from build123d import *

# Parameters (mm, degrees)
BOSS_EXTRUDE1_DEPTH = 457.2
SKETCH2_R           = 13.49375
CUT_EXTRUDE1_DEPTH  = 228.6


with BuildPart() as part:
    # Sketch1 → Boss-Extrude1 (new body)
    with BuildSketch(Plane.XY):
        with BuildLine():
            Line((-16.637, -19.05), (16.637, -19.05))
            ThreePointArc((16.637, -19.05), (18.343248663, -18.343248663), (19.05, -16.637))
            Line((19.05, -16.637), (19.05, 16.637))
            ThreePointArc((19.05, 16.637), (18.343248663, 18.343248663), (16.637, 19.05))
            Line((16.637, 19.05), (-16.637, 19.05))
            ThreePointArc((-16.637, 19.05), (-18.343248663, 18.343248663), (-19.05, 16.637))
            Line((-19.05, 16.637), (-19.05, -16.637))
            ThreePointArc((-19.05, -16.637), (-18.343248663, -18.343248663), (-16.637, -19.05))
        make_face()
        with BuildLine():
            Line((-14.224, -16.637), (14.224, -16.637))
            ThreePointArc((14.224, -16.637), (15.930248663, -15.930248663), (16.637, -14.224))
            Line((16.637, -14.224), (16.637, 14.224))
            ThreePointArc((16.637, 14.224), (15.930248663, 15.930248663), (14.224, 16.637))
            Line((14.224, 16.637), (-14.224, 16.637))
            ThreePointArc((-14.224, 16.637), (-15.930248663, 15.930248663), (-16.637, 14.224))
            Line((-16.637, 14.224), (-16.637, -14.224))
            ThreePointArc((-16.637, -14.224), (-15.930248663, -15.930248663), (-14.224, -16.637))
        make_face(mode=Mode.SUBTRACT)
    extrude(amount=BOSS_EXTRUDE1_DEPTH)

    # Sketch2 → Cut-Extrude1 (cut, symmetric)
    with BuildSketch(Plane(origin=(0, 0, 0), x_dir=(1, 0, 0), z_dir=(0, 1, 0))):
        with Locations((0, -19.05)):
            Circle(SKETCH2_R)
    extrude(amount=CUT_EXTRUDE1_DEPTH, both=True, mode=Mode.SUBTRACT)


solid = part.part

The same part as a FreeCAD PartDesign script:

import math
import FreeCAD as App
import Part
import Sketcher
Q = App.Units.Quantity

doc = App.newDocument("Part")
body = doc.addObject("PartDesign::Body", "Body")

sketch1 = body.newObject("Sketcher::SketchObject", "Sketch")
sketch1.AttachmentSupport = (doc.getObject("XY_Plane"), [""])
sketch1.MapMode = "FlatFace"
sketch1.addGeometry(Part.LineSegment(App.Vector(-16.6, -19.1, 0), App.Vector(16.6, -19.1, 0)), False)
sketch1.addGeometry(Part.ArcOfCircle(Part.Circle(App.Vector(16.6, -16.6, 0), App.Vector(0, 0, 1), 2.4), math.radians(-90), math.radians(0)), False)
sketch1.addGeometry(Part.LineSegment(App.Vector(19.1, -16.6, 0), App.Vector(19.1, 16.6, 0)), False)
sketch1.addGeometry(Part.ArcOfCircle(Part.Circle(App.Vector(16.6, 16.6, 0), App.Vector(0, 0, 1), 2.4), math.radians(0), math.radians(90)), False)
sketch1.addGeometry(Part.LineSegment(App.Vector(16.6, 19.1, 0), App.Vector(-16.6, 19.1, 0)), False)
sketch1.addGeometry(Part.ArcOfCircle(Part.Circle(App.Vector(-16.6, 16.6, 0), App.Vector(0, 0, 1), 2.4), math.radians(90), math.radians(180)), False)
sketch1.addGeometry(Part.LineSegment(App.Vector(-19.1, 16.6, 0), App.Vector(-19.1, -16.6, 0)), False)
sketch1.addGeometry(Part.ArcOfCircle(Part.Circle(App.Vector(-16.6, -16.6, 0), App.Vector(0, 0, 1), 2.4), math.radians(180), math.radians(270)), False)
sketch1.addGeometry(Part.LineSegment(App.Vector(14.2, -16.6, 0), App.Vector(-14.2, -16.6, 0)), False)
sketch1.addGeometry(Part.ArcOfCircle(Part.Circle(App.Vector(-14.2, -14.2, 0), App.Vector(0, 0, 1), 2.4), math.radians(180), math.radians(270)), False)
sketch1.addGeometry(Part.LineSegment(App.Vector(-16.6, -14.2, 0), App.Vector(-16.6, 14.2, 0)), False)
sketch1.addGeometry(Part.ArcOfCircle(Part.Circle(App.Vector(-14.2, 14.2, 0), App.Vector(0, 0, 1), 2.4), math.radians(90), math.radians(180)), False)
sketch1.addGeometry(Part.LineSegment(App.Vector(-14.2, 16.6, 0), App.Vector(14.2, 16.6, 0)), False)
sketch1.addGeometry(Part.ArcOfCircle(Part.Circle(App.Vector(14.2, 14.2, 0), App.Vector(0, 0, 1), 2.4), math.radians(0), math.radians(90)), False)
sketch1.addGeometry(Part.LineSegment(App.Vector(16.6, 14.2, 0), App.Vector(16.6, -14.2, 0)), False)
sketch1.addGeometry(Part.ArcOfCircle(Part.Circle(App.Vector(14.2, -14.2, 0), App.Vector(0, 0, 1), 2.4), math.radians(-90), math.radians(0)), False)
sketch1.addConstraint(Sketcher.Constraint("Tangent", 0, 2, 1, 1))
sketch1.addConstraint(Sketcher.Constraint("Tangent", 1, 2, 2, 1))
sketch1.addConstraint(Sketcher.Constraint("Tangent", 2, 2, 3, 1))
sketch1.addConstraint(Sketcher.Constraint("Tangent", 3, 2, 4, 1))
sketch1.addConstraint(Sketcher.Constraint("Tangent", 4, 2, 5, 1))
sketch1.addConstraint(Sketcher.Constraint("Tangent", 5, 2, 6, 1))
sketch1.addConstraint(Sketcher.Constraint("Tangent", 6, 2, 7, 1))
sketch1.addConstraint(Sketcher.Constraint("Tangent", 7, 2, 0, 1))
sketch1.addConstraint(Sketcher.Constraint("Tangent", 8, 2, 9, 2))
sketch1.addConstraint(Sketcher.Constraint("Tangent", 9, 1, 10, 1))
sketch1.addConstraint(Sketcher.Constraint("Tangent", 10, 2, 11, 2))
sketch1.addConstraint(Sketcher.Constraint("Tangent", 11, 1, 12, 1))
sketch1.addConstraint(Sketcher.Constraint("Tangent", 12, 2, 13, 2))
sketch1.addConstraint(Sketcher.Constraint("Tangent", 13, 1, 14, 1))
sketch1.addConstraint(Sketcher.Constraint("Tangent", 14, 2, 15, 2))
sketch1.addConstraint(Sketcher.Constraint("Tangent", 15, 1, 8, 1))
sketch1.addConstraint(Sketcher.Constraint("Horizontal", 0))
sketch1.addConstraint(Sketcher.Constraint("Vertical", 2))
sketch1.addConstraint(Sketcher.Constraint("Horizontal", 4))
sketch1.addConstraint(Sketcher.Constraint("Vertical", 6))
sketch1.addConstraint(Sketcher.Constraint("Horizontal", 8))
sketch1.addConstraint(Sketcher.Constraint("Vertical", 10))
sketch1.addConstraint(Sketcher.Constraint("Horizontal", 12))
sketch1.addConstraint(Sketcher.Constraint("Vertical", 14))
sketch1.addConstraint(Sketcher.Constraint("Equal", 1, 3))
sketch1.addConstraint(Sketcher.Constraint("Equal", 3, 5))
sketch1.addConstraint(Sketcher.Constraint("Equal", 5, 7))
sketch1.addConstraint(Sketcher.Constraint("Equal", 7, 9))
sketch1.addConstraint(Sketcher.Constraint("Equal", 9, 11))
sketch1.addConstraint(Sketcher.Constraint("Equal", 11, 13))
sketch1.addConstraint(Sketcher.Constraint("Equal", 13, 15))
sketch1.addConstraint(Sketcher.Constraint("Symmetric", 1, 3, 5, 3, -1, 1))
sketch1.addConstraint(Sketcher.Constraint("Symmetric", 9, 3, 13, 3, -1, 1))
sketch1.addConstraint(Sketcher.Constraint("Horizontal", 6, 2, 8, 2))
sketch1.addConstraint(Sketcher.Constraint("Vertical", 7, 2, 9, 1))
sketch1.addConstraint(Sketcher.Constraint("Equal", 4, 2))
sketch1.addConstraint(Sketcher.Constraint("Radius", 1, Q("0.095 in")))
sketch1.addConstraint(Sketcher.Constraint("DistanceX", 0, 1, 0, 2, Q("1.31 in")))
pad1 = body.newObject("PartDesign::Pad", "Pad")
pad1.Profile = sketch1
pad1.Length = Q("18 in")

sketch2 = body.newObject("Sketcher::SketchObject", "Sketch001")
sketch2.AttachmentSupport = (doc.getObject("XZ_Plane"), [""])
sketch2.MapMode = "FlatFace"
sketch2.addGeometry(Part.Circle(App.Vector(0, 19, 0), App.Vector(0, 0, 1), 13), False)
sketch2.addConstraint(Sketcher.Constraint("PointOnObject", 0, 3, -2))
sketch2.addConstraint(Sketcher.Constraint("Diameter", 0, Q("1.0625 in")))
sketch2.addConstraint(Sketcher.Constraint("DistanceY", -1, 1, 0, 3, Q("0.75 in")))
pocket1 = body.newObject("PartDesign::Pocket", "Pocket")
pocket1.Profile = sketch2
pocket1.Length = Q("18 in")
pocket1.Midplane = True

doc.recompute()
